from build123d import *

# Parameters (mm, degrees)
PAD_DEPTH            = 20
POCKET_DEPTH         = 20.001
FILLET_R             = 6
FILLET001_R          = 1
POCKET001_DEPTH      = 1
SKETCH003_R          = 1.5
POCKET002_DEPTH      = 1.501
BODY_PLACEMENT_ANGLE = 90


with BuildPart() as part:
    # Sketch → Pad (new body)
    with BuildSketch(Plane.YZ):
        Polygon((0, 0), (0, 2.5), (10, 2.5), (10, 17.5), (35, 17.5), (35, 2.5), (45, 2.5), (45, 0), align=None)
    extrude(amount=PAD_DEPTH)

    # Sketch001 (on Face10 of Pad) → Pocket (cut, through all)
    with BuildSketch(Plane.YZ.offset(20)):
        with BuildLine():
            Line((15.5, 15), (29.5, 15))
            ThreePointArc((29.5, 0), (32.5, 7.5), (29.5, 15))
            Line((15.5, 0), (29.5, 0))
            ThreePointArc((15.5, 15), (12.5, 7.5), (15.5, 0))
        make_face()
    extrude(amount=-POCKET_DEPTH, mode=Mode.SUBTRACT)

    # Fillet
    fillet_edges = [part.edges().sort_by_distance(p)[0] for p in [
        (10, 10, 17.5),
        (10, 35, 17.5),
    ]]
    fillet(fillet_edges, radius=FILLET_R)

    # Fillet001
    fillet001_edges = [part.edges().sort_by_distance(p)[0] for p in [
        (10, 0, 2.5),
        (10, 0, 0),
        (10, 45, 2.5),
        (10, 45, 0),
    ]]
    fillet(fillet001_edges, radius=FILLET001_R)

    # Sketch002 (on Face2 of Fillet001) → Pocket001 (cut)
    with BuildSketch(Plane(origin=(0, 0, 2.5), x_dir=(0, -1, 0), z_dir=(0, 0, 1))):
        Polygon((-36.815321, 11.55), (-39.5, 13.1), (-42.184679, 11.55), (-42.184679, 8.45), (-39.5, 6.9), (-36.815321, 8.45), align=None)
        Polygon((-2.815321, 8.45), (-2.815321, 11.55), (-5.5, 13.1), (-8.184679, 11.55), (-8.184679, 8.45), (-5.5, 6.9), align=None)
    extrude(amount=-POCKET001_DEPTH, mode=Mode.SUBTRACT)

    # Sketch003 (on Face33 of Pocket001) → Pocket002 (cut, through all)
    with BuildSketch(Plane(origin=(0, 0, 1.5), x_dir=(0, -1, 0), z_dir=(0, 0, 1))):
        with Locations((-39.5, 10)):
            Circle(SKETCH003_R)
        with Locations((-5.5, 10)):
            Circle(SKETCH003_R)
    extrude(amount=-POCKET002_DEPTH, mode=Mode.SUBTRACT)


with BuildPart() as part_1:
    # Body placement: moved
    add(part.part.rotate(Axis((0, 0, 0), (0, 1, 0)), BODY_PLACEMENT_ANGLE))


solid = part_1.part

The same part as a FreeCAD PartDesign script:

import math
import FreeCAD as App
import Part
import Sketcher
from FreeCAD import Vector
Q = App.Units.Quantity


def edges_at(feature, points):
    """Names of the edges that pass closest to the given points."""
    edges = feature.Shape.Edges
    near = lambda p: min(range(len(edges)), key=lambda i: edges[i].distToShape(Part.Vertex(*p))[0])
    return sorted({f"Edge{near(p) + 1}" for p in points})

doc = App.newDocument("Part")
body = doc.addObject("PartDesign::Body", "Body")

sketch1 = doc.addObject("Sketcher::SketchObject", "Sketch")
body.addObject(sketch1)
sketch1.AttachmentSupport = (doc.YZ_Plane, [""])
sketch1.MapMode = "FlatFace"
sketch1.addGeometry([
    Part.LineSegment(Vector(0, 2.5, 0), Vector(0, 0, 0)),
    Part.LineSegment(Vector(0, 0, 0), Vector(45, 0, 0)),
    Part.LineSegment(Vector(45, 0, 0), Vector(45, 2.5, 0)),
    Part.LineSegment(Vector(45, 2.5, 0), Vector(35, 2.5, 0)),
    Part.LineSegment(Vector(35, 2.5, 0), Vector(35, 17.5, 0)),
    Part.LineSegment(Vector(35, 17.5, 0), Vector(10, 17.5, 0)),
    Part.LineSegment(Vector(10, 17.5, 0), Vector(10, 2.5, 0)),
    Part.LineSegment(Vector(10, 2.5, 0), Vector(0, 2.5, 0)),
], False)
sketch1.addConstraint([
    Sketcher.Constraint("Coincident", 0, 2, 1, 1),
    Sketcher.Constraint("Coincident", 1, 2, 2, 1),
    Sketcher.Constraint("Coincident", 2, 2, 3, 1),
    Sketcher.Constraint("Coincident", 3, 2, 4, 1),
    Sketcher.Constraint("Coincident", 4, 2, 5, 1),
    Sketcher.Constraint("Coincident", 5, 2, 6, 1),
    Sketcher.Constraint("Coincident", 6, 2, 7, 1),
    Sketcher.Constraint("Coincident", 7, 2, 0, 1),
    Sketcher.Constraint("Vertical", 0),
    Sketcher.Constraint("Horizontal", 1),
    Sketcher.Constraint("Vertical", 2),
    Sketcher.Constraint("Horizontal", 3),
    Sketcher.Constraint("Vertical", 4),
    Sketcher.Constraint("Horizontal", 5),
    Sketcher.Constraint("Vertical", 6),
    Sketcher.Constraint("Horizontal", 7),
    Sketcher.Constraint("Coincident", 0, 2, -1, 1),
    Sketcher.Constraint("Horizontal", 3, 2, 6, 2),
    Sketcher.Constraint("Equal", 3, 7),
    Sketcher.Constraint("DistanceX", 1, 1, 1, 2, Q("45 mm")),
    Sketcher.Constraint("DistanceX", 3, 2, 3, 1, Q("10 mm")),
    Sketcher.Constraint("DistanceY", 4, 1, 4, 2, Q("15 mm")),
    Sketcher.Constraint("DistanceY", 0, 2, 0, 1, Q("2.5 mm")),
])
pad1 = doc.addObject("PartDesign::Pad", "Pad")
body.addObject(pad1)
pad1.Profile = sketch1
pad1.Length = 20

sketch2 = doc.addObject("Sketcher::SketchObject", "Sketch001")
body.addObject(sketch2)
sketch2.AttachmentSupport = (doc.YZ_Plane, [""])
sketch2.MapMode = "FlatFace"
sketch2.AttachmentOffset = App.Placement(Vector(0, 0, 20), App.Rotation())
sketch2.addGeometry([
    Part.LineSegment(Vector(29.5, 15, 0), Vector(15.5, 15, 0)),
    Part.ArcOfCircle(Part.Circle(Vector(23.375, 7.5, 0), Vector(0, 0, 1), 10.875), math.radians(136.397181), math.radians(223.602819)),
    Part.LineSegment(Vector(15.5, 0, 0), Vector(29.5, 0, 0)),
    Part.ArcOfCircle(Part.Circle(Vector(21.625, 7.5, 0), Vector(0, 0, 1), 10.875), math.radians(-43.602819), math.radians(43.602819)),
], False)
sketch2.addConstraint([
    Sketcher.Constraint("Coincident", 0, 2, 1, 1),
    Sketcher.Constraint("Coincident", 1, 2, 2, 1),
    Sketcher.Constraint("Coincident", 2, 2, 3, 1),
    Sketcher.Constraint("Coincident", 3, 2, 0, 1),
    Sketcher.Constraint("Horizontal", 0),
    Sketcher.Constraint("Horizontal", 2),
    Sketcher.Constraint("Equal", 1, 3),
    Sketcher.Constraint("PointOnObject", 1, 2, -1),
    Sketcher.Constraint("Horizontal", 1, 3, 3, 3),
    Sketcher.Constraint("Vertical", 0, 2, 1, 2),
    Sketcher.Constraint("DistanceX", 0, 2, 0, 1, Q("14 mm")),
    Sketcher.Constraint("DistanceY", -1, 1, 0, 2, Q("15 mm")),
    Sketcher.Constraint("Radius", 1, Q("10.875 mm")),
    Sketcher.Constraint("DistanceX", -1, 1, 0, 2, Q("15.5 mm")),
])
pocket1 = doc.addObject("PartDesign::Pocket", "Pocket")
body.addObject(pocket1)
pocket1.Profile = sketch2
pocket1.Type = "ThroughAll"
doc.recompute()

fillet = doc.addObject("PartDesign::Fillet", "Fillet")
body.addObject(fillet)
fillet.Base = (pocket1, edges_at(pocket1, [(10, 10, 17.5), (10, 35, 17.5)]))
fillet.Radius = 6
doc.recompute()

fillet2 = doc.addObject("PartDesign::Fillet", "Fillet001")
body.addObject(fillet2)
fillet2.Base = (fillet, edges_at(fillet, [
    (10, 0, 2.5),
    (10, 0, 0),
    (10, 45, 2.5),
    (10, 45, 0),
]))
fillet2.Radius = 1

sketch3 = doc.addObject("Sketcher::SketchObject", "Sketch002")
body.addObject(sketch3)
sketch3.AttachmentSupport = (doc.XY_Plane, [""])
sketch3.MapMode = "FlatFace"
sketch3.AttachmentOffset = App.Placement(Vector(0, 0, 2.5), App.Rotation())
sketch3.addGeometry([
    Part.LineSegment(Vector(11.55, 36.815321, 0), Vector(13.1, 39.5, 0)),
    Part.LineSegment(Vector(13.1, 39.5, 0), Vector(11.55, 42.184679, 0)),
    Part.LineSegment(Vector(11.55, 42.184679, 0), Vector(8.45, 42.184679, 0)),
    Part.LineSegment(Vector(8.45, 42.184679, 0), Vector(6.9, 39.5, 0)),
    Part.LineSegment(Vector(6.9, 39.5, 0), Vector(8.45, 36.815321, 0)),
    Part.LineSegment(Vector(8.45, 36.815321, 0), Vector(11.55, 36.815321, 0)),
    Part.LineSegment(Vector(8.45, 2.815321, 0), Vector(11.55, 2.815321, 0)),
    Part.LineSegment(Vector(11.55, 2.815321, 0), Vector(13.1, 5.5, 0)),
    Part.LineSegment(Vector(13.1, 5.5, 0), Vector(11.55, 8.184679, 0)),
    Part.LineSegment(Vector(11.55, 8.184679, 0), Vector(8.45, 8.184679, 0)),
    Part.LineSegment(Vector(8.45, 8.184679, 0), Vector(6.9, 5.5, 0)),
    Part.LineSegment(Vector(6.9, 5.5, 0), Vector(8.45, 2.815321, 0)),
], False)
sketch3.addConstraint([
    Sketcher.Constraint("Coincident", 0, 2, 1, 1),
    Sketcher.Constraint("Coincident", 1, 2, 2, 1),
    Sketcher.Constraint("Coincident", 2, 2, 3, 1),
    Sketcher.Constraint("Coincident", 3, 2, 4, 1),
    Sketcher.Constraint("Coincident", 4, 2, 5, 1),
    Sketcher.Constraint("Coincident", 5, 2, 0, 1),
    Sketcher.Constraint("Coincident", 6, 2, 7, 1),
    Sketcher.Constraint("Coincident", 7, 2, 8, 1),
    Sketcher.Constraint("Coincident", 8, 2, 9, 1),
    Sketcher.Constraint("Coincident", 9, 2, 10, 1),
    Sketcher.Constraint("Coincident", 10, 2, 11, 1),
    Sketcher.Constraint("Coincident", 11, 2, 6, 1),
    Sketcher.Constraint("Horizontal", 2),
    Sketcher.Constraint("Horizontal", 5),
    Sketcher.Constraint("Horizontal", 6),
    Sketcher.Constraint("Horizontal", 9),
    Sketcher.Constraint("Parallel", 0, 3),
    Sketcher.Constraint("Parallel", 1, 4),
    Sketcher.Constraint("Parallel", 3, 7),
    Sketcher.Constraint("Parallel", 4, 8),
    Sketcher.Constraint("Parallel", 7, 10),
    Sketcher.Constraint("Parallel", 8, 11),
    Sketcher.Constraint("Horizontal", 0, 2, 3, 2),
    Sketcher.Constraint("Horizontal", 7, 2, 10, 2),
    Sketcher.Constraint("Vertical", 2, 2, 4, 2),
    Sketcher.Constraint("Vertical", 1, 2, 5, 2),
    Sketcher.Constraint("Vertical", 5, 2, 6, 2),
    Sketcher.Constraint("Vertical", 0, 2, 7, 2),
    Sketcher.Constraint("Vertical", 6, 2, 8, 2),
    Sketcher.Constraint("Vertical", 4, 2, 9, 2),
    Sketcher.Constraint("Angle", 0, Q("60.000002 deg")),
    Sketcher.Constraint("DistanceX", 2, 2, 2, 1, Q("3.1 mm")),
    Sketcher.Constraint("DistanceY", 6, 2, 5, 2, Q("34 mm")),
    Sketcher.Constraint("Distance", 0, Q("3.1 mm")),
    Sketcher.Constraint("DistanceX", -1, 1, 0, 2, Q("13.1 mm")),
    Sketcher.Constraint("DistanceY", -1, 1, 0, 2, Q("39.5 mm")),
])
pocket2 = doc.addObject("PartDesign::Pocket", "Pocket001")
body.addObject(pocket2)
pocket2.Profile = sketch3
pocket2.Length = 1

sketch4 = doc.addObject("Sketcher::SketchObject", "Sketch003")
body.addObject(sketch4)
sketch4.AttachmentSupport = (doc.XY_Plane, [""])
sketch4.MapMode = "FlatFace"
sketch4.AttachmentOffset = App.Placement(Vector(0, 0, 1.5), App.Rotation())
sketch4.addGeometry([
    Part.Circle(Vector(10, 39.5, 0), Vector(0, 0, 1), 1.5),
    Part.Circle(Vector(10, 5.5, 0), Vector(0, 0, 1), 1.5),
], False)
sketch4.addConstraint([
    Sketcher.Constraint("Equal", 0, 1),
    Sketcher.Constraint("Vertical", 0, 3, 1, 3),
    Sketcher.Constraint("Diameter", 0, Q("3 mm")),
    Sketcher.Constraint("DistanceX", -1, 1, 0, 3, Q("10 mm")),
    Sketcher.Constraint("DistanceY", 1, 3, 0, 3, Q("34 mm")),
    Sketcher.Constraint("DistanceY", -1, 1, 0, 3, Q("39.5 mm")),
])
pocket3 = doc.addObject("PartDesign::Pocket", "Pocket002")
body.addObject(pocket3)
pocket3.Profile = sketch4
pocket3.Type = "ThroughAll"
body2 = doc.addObject("PartDesign::Body", "Body001")
doc.recompute()

body.Placement = App.Placement(Vector(0, 0, 0), App.Rotation(Vector(0, 1, 0), 90))
boolean = doc.addObject("PartDesign::Boolean", "Boolean")
body2.addObject(boolean)
boolean.Type = "Fuse"
boolean.addObjects([body])

doc.recompute()
